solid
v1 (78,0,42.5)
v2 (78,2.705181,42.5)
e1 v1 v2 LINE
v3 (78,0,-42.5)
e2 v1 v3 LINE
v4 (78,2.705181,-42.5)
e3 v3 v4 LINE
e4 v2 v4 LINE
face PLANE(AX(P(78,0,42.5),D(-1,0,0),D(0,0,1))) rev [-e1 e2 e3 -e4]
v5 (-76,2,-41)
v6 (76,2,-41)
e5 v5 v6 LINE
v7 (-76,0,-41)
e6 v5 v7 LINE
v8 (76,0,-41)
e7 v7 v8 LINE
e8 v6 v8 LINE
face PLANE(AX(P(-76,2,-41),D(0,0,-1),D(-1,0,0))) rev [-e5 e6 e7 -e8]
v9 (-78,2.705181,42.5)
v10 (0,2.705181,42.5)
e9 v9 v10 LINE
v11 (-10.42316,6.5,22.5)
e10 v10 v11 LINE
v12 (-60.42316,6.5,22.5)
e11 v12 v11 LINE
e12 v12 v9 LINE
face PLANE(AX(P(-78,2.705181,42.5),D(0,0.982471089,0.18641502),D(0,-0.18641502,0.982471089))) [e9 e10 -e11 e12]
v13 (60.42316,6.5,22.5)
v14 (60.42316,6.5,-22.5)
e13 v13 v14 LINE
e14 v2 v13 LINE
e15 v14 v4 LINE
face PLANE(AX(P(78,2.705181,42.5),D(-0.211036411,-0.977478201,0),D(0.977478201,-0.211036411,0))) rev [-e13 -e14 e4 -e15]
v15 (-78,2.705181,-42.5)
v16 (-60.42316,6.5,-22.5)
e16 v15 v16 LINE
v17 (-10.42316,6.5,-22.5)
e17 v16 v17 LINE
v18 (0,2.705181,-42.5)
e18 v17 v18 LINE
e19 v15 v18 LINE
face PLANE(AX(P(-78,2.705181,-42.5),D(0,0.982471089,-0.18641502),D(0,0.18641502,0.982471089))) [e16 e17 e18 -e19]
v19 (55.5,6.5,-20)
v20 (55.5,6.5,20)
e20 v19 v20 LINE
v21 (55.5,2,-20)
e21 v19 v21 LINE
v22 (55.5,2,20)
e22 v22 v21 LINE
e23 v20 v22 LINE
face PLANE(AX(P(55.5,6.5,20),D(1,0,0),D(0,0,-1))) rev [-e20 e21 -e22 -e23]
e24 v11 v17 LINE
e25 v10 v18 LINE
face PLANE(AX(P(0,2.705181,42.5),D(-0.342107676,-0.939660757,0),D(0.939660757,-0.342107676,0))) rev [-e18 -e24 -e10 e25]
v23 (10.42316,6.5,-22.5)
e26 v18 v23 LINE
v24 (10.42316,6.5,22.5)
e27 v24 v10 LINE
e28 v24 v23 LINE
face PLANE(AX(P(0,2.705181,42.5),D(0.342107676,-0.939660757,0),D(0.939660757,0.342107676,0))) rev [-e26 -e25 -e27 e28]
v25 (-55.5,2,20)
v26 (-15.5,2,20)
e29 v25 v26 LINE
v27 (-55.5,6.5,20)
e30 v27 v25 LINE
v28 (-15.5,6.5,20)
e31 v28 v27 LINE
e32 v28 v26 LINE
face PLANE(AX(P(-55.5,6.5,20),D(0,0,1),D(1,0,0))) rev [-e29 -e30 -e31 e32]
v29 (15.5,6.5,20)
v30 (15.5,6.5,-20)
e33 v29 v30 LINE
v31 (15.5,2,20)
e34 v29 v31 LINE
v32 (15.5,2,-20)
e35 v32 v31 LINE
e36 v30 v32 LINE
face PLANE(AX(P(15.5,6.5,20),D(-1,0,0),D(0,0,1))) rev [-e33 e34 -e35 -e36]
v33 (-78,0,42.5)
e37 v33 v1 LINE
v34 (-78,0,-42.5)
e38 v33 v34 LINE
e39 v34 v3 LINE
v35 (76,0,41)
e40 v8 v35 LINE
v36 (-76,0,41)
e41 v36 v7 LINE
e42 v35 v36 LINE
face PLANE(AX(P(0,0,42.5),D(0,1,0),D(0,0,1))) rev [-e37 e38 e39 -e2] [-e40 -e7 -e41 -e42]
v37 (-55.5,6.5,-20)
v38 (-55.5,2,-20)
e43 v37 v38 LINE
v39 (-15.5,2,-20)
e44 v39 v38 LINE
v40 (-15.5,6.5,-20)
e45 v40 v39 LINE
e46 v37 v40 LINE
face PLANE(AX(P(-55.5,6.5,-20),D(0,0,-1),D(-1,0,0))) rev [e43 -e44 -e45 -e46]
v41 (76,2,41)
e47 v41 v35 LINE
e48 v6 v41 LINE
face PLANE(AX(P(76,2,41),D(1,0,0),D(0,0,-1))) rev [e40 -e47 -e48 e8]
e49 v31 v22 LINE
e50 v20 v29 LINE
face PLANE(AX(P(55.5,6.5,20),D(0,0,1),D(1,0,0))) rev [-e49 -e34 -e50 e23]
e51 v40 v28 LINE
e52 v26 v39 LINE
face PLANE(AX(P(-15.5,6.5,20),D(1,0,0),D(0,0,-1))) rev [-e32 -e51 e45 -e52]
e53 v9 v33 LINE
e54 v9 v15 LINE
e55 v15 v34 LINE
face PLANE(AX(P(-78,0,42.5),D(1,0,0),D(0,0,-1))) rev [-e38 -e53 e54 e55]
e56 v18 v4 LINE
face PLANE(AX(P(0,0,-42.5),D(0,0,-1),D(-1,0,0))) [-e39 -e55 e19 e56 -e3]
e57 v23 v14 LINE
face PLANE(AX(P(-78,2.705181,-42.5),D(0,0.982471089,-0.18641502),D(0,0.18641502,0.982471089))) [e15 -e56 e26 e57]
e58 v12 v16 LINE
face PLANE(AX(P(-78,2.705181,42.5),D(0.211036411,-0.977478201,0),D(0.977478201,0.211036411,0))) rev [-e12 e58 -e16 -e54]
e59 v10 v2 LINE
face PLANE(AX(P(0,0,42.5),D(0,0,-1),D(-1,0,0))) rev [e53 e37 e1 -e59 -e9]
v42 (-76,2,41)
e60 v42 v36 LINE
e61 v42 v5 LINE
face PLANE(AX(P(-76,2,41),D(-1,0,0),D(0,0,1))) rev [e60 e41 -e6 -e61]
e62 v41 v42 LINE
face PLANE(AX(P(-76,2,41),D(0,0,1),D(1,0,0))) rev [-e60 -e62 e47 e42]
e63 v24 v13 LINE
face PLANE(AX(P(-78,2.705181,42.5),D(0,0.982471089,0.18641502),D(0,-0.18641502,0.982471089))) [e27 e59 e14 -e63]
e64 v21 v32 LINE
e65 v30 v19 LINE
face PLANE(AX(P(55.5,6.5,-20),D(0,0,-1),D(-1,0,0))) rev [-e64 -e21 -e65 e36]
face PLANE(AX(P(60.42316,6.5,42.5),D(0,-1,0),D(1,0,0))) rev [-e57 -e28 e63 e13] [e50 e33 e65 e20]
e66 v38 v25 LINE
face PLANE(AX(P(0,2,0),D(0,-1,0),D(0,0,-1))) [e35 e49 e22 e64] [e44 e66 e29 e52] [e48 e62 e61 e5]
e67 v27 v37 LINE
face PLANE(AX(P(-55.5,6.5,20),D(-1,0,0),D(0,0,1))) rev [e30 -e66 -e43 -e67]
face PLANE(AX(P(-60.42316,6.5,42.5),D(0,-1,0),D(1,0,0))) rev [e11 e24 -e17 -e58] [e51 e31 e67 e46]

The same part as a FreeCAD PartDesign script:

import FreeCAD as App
import Part
import Sketcher
from FreeCAD import Vector


def add_polygon(sketch, points):
    """Adds a closed chain of lines whose ends are joined by coincident constraints."""
    first, n = sketch.GeometryCount, len(points)
    for a, b in zip(points, points[1:] + points[:1]):
        sketch.addGeometry(Part.LineSegment(App.Vector(*a, 0), App.Vector(*b, 0)), False)
    for i in range(n):
        sketch.addConstraint(Sketcher.Constraint("Coincident", first + i, 2, first + (i + 1) % n, 1))

doc = App.newDocument("Part")
params = doc.addObject("Spreadsheet::Sheet", "Params")
for row, (alias, value) in enumerate([
    ("sketch1_width", "156 mm"),
    ("sketch1_width2", "50 mm"),
    ("pad1_length", "85 mm"),
    ("sketch2_height", "85 mm"),
    ("sketch2_height2", "45 mm"),
    ("pocket1_length", "156 mm"),
    ("sketch3_width", "40 mm"),
    ("sketch4_width", "152 mm"),
    ("sketch4_height", "82 mm"),
    ("pocket3_length", "2 mm"),
], start=1):
    params.set(f"A{row}", alias)
    params.set(f"B{row}", "=" + value)
    params.setAlias(f"B{row}", alias)

body = doc.addObject("PartDesign::Body", "Body")

# Sketch on XY plane
sketch1 = body.newObject("Sketcher::SketchObject", "Sketch")
sketch1.AttachmentSupport = (doc.getObject("XY_Plane"), [""])
sketch1.MapMode = "FlatFace"
add_polygon(sketch1, [(-78, 0), (78, 0), (78, 2.7), (60.4, 6.5), (10.4, 6.5), (0, 2.7), (-10.4, 6.5), (-60.4, 6.5), (-78, 2.7)])  # lines 0-8
sketch1.addConstraint([
    Sketcher.Constraint("Horizontal", 0),
    Sketcher.Constraint("Vertical", 1),
    Sketcher.Constraint("Horizontal", 3),
    Sketcher.Constraint("Horizontal", 6),
    Sketcher.Constraint("Vertical", 8),
    Sketcher.Constraint("Symmetric", 0, 2, 8, 2, -1, 1),
    Sketcher.Constraint("Symmetric", 3, 2, 5, 2, -2),
    Sketcher.Constraint("PointOnObject", 4, 2, -2),
    Sketcher.Constraint("Horizontal", 1, 2, 4, 2),
    Sketcher.Constraint("Horizontal", 4, 2, 7, 2),
    Sketcher.Constraint("Equal", 3, 6),
    Sketcher.Constraint("DistanceX", 0, 1, 0, 2, 156.0),
    Sketcher.Constraint("DistanceX", 3, 2, 3, 1, 50.0),
    Sketcher.Constraint("DistanceY", -1, 1, 2, 2, 6.5),
    Sketcher.Constraint("DistanceY", 1, 1, 1, 2, 2.705181),
    Sketcher.Constraint("Distance", 4, 11.092471),
])
sketch1.setExpression("Constraints[20]", "Params.sketch1_width")
sketch1.setExpression("Constraints[21]", "Params.sketch1_width2")
pad1 = body.newObject("PartDesign::Pad", "Pad")
pad1.Profile = sketch1
pad1.setExpression("Length", "Params.pad1_length")
pad1.Midplane = True

# Sketch on YZ plane
sketch2 = body.newObject("Sketcher::SketchObject", "Sketch001")
sketch2.AttachmentSupport = (doc.getObject("YZ_Plane"), [""])
sketch2.MapMode = "FlatFace"
add_polygon(sketch2, [(25.3, 61.3), (-18.8, 61.3), (-18.8, -61.3), (25.3, -61.3)])  # lines 0-3
add_polygon(sketch2, [(2.7, -42.5), (0, -42.5), (0, 42.5), (2.7, 42.5), (6.5, 22.5), (6.5, -22.5)])  # lines 4-9
sketch2.addConstraint([
    Sketcher.Constraint("Horizontal", 0),
    Sketcher.Constraint("Vertical", 1),
    Sketcher.Constraint("Horizontal", 2),
    Sketcher.Constraint("Vertical", 3),
    Sketcher.Constraint("Horizontal", 4),
    Sketcher.Constraint("Vertical", 5),
    Sketcher.Constraint("Horizontal", 6),
    Sketcher.Constraint("Vertical", 8),
    Sketcher.Constraint("Symmetric", 4, 2, 5, 2, -1, 1),
    Sketcher.Constraint("Vertical", 6, 2, 9, 2),
    Sketcher.Constraint("Equal", 7, 9),
    Sketcher.Constraint("DistanceY", 5, 1, 5, 2, 85.0),
    Sketcher.Constraint("DistanceY", 8, 2, 8, 1, 45.0),
    Sketcher.Constraint("DistanceX", -1, 1, 7, 2, 6.5),
    Sketcher.Constraint("DistanceX", 0, 2, 0, 1, 44.054),
    Sketcher.Constraint("DistanceY", 1, 2, 1, 1, 122.554),
    Sketcher.Constraint("DistanceX", 0, 2, -1, 1, 18.777),
    Sketcher.Constraint("DistanceY", -1, 1, 0, 2, 61.277),
    Sketcher.Constraint("DistanceX", 4, 2, 4, 1, 2.705181),
])
sketch2.setExpression("Constraints[21]", "Params.sketch2_height")
sketch2.setExpression("Constraints[22]", "Params.sketch2_height2")
pocket1 = body.newObject("PartDesign::Pocket", "Pocket")
pocket1.Profile = sketch2
pocket1.setExpression("Length", "Params.pocket1_length")
pocket1.Midplane = True

# Sketch on XZ plane
sketch3 = body.newObject("Sketcher::SketchObject", "Sketch002")
sketch3.AttachmentSupport = (doc.getObject("XZ_Plane"), [""])
sketch3.MapMode = "FlatFace"
add_polygon(sketch3, [(-56, 20), (-56, -20), (-16, -20), (-16, 20)])  # lines 0-3
add_polygon(sketch3, [(16, 20), (16, -20), (56, -20), (56, 20)])  # lines 4-7
sketch3.addConstraint([
    Sketcher.Constraint("Vertical", 0),
    Sketcher.Constraint("Horizontal", 1),
    Sketcher.Constraint("Vertical", 2),
    Sketcher.Constraint("Horizontal", 3),
    Sketcher.Constraint("Vertical", 4),
    Sketcher.Constraint("Horizontal", 5),
    Sketcher.Constraint("Vertical", 6),
    Sketcher.Constraint("Horizontal", 7),
    Sketcher.Constraint("Symmetric", 2, 2, 4, 2, -1, 1),
    Sketcher.Constraint("Symmetric", 0, 2, 6, 2, -1, 1),
    Sketcher.Constraint("Horizontal", 1, 2, 4, 2),
    Sketcher.Constraint("Equal", 7, 0),
    Sketcher.Constraint("DistanceX", 1, 1, 1, 2, 40.0),
    Sketcher.Constraint("DistanceX", 1, 2, 4, 2, 31.0),
])
sketch3.setExpression("Constraints[20]", "Params.sketch3_width")
pocket2 = body.newObject("PartDesign::Pocket", "Pocket001")
pocket2.Profile = sketch3
pocket2.Type = "ThroughAll"

# Sketch on XZ plane
sketch4 = body.newObject("Sketcher::SketchObject", "Sketch003")
sketch4.AttachmentSupport = (doc.getObject("XZ_Plane"), [""])
sketch4.MapMode = "FlatFace"
add_polygon(sketch4, [(-76, 41), (-76, -41), (76, -41), (76, 41)])  # lines 0-3
sketch4.addConstraint([
    Sketcher.Constraint("Vertical", 0),
    Sketcher.Constraint("Horizontal", 1),
    Sketcher.Constraint("Vertical", 2),
    Sketcher.Constraint("Horizontal", 3),
    Sketcher.Constraint("Symmetric", 0, 2, 2, 2, -1, 1),
    Sketcher.Constraint("DistanceX", 1, 1, 1, 2, 152.0),
    Sketcher.Constraint("DistanceY", 0, 2, 0, 1, 82.0),
])
sketch4.setExpression("Constraints[9]", "Params.sketch4_width")
sketch4.setExpression("Constraints[10]", "Params.sketch4_height")
pocket3 = body.newObject("PartDesign::Pocket", "Pocket002")
pocket3.Profile = sketch4
pocket3.setExpression("Length", "Params.pocket3_length")

doc.recompute()
